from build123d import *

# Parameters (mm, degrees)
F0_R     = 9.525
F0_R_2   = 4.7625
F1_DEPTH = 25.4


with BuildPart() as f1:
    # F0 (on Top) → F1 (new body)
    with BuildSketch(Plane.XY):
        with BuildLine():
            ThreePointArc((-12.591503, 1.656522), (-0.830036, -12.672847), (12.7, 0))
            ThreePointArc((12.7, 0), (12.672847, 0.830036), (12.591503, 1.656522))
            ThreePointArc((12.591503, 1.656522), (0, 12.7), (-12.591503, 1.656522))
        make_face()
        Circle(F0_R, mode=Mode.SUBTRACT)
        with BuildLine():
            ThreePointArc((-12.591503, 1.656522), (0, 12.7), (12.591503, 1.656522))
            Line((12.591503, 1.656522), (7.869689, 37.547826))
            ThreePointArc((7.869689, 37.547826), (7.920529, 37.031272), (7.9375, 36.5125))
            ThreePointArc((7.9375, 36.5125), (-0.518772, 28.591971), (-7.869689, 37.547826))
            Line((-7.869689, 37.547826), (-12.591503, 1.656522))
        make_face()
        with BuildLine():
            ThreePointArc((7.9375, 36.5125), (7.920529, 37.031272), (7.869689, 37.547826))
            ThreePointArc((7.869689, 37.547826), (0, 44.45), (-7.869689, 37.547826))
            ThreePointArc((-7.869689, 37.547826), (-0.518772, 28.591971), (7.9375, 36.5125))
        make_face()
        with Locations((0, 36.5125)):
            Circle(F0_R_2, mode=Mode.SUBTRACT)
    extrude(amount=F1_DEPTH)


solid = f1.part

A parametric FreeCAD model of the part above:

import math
import FreeCAD as App
import Part
import Sketcher
from FreeCAD import Vector
Q = App.Units.Quantity

doc = App.newDocument("Part")
params = doc.addObject("Spreadsheet::Sheet", "Params")
for row, (alias, value) in enumerate([
    ("sketch1_radius", "0.5 in"),
    ("sketch1_diameter", "0.75 in"),
    ("sketch1_diameter2", "0.375 in"),
    ("sketch1_radius2", "0.3125 in"),
    ("pad1_length", "1 in"),
], start=1):
    params.set(f"A{row}", alias)
    params.set(f"B{row}", "=" + value)
    params.setAlias(f"B{row}", alias)

body = doc.addObject("PartDesign::Body", "Body")

# Sketch on XY plane
sketch1 = body.newObject("Sketcher::SketchObject", "Sketch")
sketch1.AttachmentSupport = (doc.getObject("XY_Plane"), [""])
sketch1.MapMode = "FlatFace"
sketch1.addGeometry(Part.ArcOfCircle(Part.Circle(Vector(0, 0, 0), Vector(0, 0, 1), 12.7), math.radians(172.505281), math.radians(360.000001)), False)
sketch1.addGeometry(Part.ArcOfCircle(Part.Circle(Vector(0.00008, 0.000009, 0), Vector(0, 0, 1), 12.69992), math.radians(-0.000041), math.radians(7.494725)), False)
sketch1.addGeometry(Part.LineSegment(Vector(12.591503, 1.656522, 0), Vector(7.869689, 37.547826, 0)), False)
sketch1.addGeometry(Part.ArcOfCircle(Part.Circle(Vector(0, 36.5125, 0), Vector(0, 0, 1), 7.9375), math.radians(7.494716), math.radians(172.505284)), False)
sketch1.addGeometry(Part.LineSegment(Vector(-7.869689, 37.547826, 0), Vector(-12.591503, 1.656522, 0)), False)
sketch1.addGeometry(Part.Circle(Vector(0, 0, 0), Vector(0, 0, 1), 9.525), False)
sketch1.addGeometry(Part.Circle(Vector(0, 36.5125, 0), Vector(0, 0, 1), 4.7625), False)
sketch1.addConstraint(Sketcher.Constraint("Coincident", 0, 2, 1, 1))
sketch1.addConstraint(Sketcher.Constraint("Coincident", 1, 2, 2, 1))
sketch1.addConstraint(Sketcher.Constraint("Coincident", 2, 2, 3, 1))
sketch1.addConstraint(Sketcher.Constraint("Coincident", 3, 2, 4, 1))
sketch1.addConstraint(Sketcher.Constraint("Coincident", 4, 2, 0, 1))
sketch1.addConstraint(Sketcher.Constraint("Coincident", 0, 3, -1, 1))
sketch1.addConstraint(Sketcher.Constraint("Coincident", 5, 3, -1, 1))
sketch1.addConstraint(Sketcher.Constraint("Coincident", 6, 3, 3, 3))
sketch1.addConstraint(Sketcher.Constraint("PointOnObject", 3, 3, -2))
sketch1.addConstraint(Sketcher.Constraint("PointOnObject", 0, 2, -1))
sketch1.addConstraint(Sketcher.Constraint("Radius", 0, Q("0.5 in")))
sketch1.addConstraint(Sketcher.Constraint("Diameter", 5, Q("0.75 in")))
sketch1.addConstraint(Sketcher.Constraint("Diameter", 6, Q("0.375 in")))
sketch1.addConstraint(Sketcher.Constraint("Radius", 3, Q("0.3125 in")))
sketch1.addConstraint(Sketcher.Constraint("DistanceY", -1, 1, 3, 3, Q("1.4375 in")))
sketch1.addConstraint(Sketcher.Constraint("Radius", 1, 12.69992))
sketch1.addConstraint(Sketcher.Constraint("Distance", 2, 36.200569))
sketch1.addConstraint(Sketcher.Constraint("Distance", 4, 36.200569))
sketch1.addConstraint(Sketcher.Constraint("DistanceX", -1, 1, 2, 2, 7.869689))
sketch1.addConstraint(Sketcher.Constraint("DistanceX", 3, 2, -1, 1, 7.869689))
sketch1.addConstraint(Sketcher.Constraint("DistanceY", 1, 3, 3, 3, 36.512491))
sketch1.setExpression("Constraints[10]", "Params.sketch1_radius")
sketch1.setExpression("Constraints[11]", "Params.sketch1_diameter")
sketch1.setExpression("Constraints[12]", "Params.sketch1_diameter2")
sketch1.setExpression("Constraints[13]", "Params.sketch1_radius2")
pad1 = body.newObject("PartDesign::Pad", "Pad")
pad1.Profile = sketch1
pad1.setExpression("Length", "Params.pad1_length")

doc.recompute()
